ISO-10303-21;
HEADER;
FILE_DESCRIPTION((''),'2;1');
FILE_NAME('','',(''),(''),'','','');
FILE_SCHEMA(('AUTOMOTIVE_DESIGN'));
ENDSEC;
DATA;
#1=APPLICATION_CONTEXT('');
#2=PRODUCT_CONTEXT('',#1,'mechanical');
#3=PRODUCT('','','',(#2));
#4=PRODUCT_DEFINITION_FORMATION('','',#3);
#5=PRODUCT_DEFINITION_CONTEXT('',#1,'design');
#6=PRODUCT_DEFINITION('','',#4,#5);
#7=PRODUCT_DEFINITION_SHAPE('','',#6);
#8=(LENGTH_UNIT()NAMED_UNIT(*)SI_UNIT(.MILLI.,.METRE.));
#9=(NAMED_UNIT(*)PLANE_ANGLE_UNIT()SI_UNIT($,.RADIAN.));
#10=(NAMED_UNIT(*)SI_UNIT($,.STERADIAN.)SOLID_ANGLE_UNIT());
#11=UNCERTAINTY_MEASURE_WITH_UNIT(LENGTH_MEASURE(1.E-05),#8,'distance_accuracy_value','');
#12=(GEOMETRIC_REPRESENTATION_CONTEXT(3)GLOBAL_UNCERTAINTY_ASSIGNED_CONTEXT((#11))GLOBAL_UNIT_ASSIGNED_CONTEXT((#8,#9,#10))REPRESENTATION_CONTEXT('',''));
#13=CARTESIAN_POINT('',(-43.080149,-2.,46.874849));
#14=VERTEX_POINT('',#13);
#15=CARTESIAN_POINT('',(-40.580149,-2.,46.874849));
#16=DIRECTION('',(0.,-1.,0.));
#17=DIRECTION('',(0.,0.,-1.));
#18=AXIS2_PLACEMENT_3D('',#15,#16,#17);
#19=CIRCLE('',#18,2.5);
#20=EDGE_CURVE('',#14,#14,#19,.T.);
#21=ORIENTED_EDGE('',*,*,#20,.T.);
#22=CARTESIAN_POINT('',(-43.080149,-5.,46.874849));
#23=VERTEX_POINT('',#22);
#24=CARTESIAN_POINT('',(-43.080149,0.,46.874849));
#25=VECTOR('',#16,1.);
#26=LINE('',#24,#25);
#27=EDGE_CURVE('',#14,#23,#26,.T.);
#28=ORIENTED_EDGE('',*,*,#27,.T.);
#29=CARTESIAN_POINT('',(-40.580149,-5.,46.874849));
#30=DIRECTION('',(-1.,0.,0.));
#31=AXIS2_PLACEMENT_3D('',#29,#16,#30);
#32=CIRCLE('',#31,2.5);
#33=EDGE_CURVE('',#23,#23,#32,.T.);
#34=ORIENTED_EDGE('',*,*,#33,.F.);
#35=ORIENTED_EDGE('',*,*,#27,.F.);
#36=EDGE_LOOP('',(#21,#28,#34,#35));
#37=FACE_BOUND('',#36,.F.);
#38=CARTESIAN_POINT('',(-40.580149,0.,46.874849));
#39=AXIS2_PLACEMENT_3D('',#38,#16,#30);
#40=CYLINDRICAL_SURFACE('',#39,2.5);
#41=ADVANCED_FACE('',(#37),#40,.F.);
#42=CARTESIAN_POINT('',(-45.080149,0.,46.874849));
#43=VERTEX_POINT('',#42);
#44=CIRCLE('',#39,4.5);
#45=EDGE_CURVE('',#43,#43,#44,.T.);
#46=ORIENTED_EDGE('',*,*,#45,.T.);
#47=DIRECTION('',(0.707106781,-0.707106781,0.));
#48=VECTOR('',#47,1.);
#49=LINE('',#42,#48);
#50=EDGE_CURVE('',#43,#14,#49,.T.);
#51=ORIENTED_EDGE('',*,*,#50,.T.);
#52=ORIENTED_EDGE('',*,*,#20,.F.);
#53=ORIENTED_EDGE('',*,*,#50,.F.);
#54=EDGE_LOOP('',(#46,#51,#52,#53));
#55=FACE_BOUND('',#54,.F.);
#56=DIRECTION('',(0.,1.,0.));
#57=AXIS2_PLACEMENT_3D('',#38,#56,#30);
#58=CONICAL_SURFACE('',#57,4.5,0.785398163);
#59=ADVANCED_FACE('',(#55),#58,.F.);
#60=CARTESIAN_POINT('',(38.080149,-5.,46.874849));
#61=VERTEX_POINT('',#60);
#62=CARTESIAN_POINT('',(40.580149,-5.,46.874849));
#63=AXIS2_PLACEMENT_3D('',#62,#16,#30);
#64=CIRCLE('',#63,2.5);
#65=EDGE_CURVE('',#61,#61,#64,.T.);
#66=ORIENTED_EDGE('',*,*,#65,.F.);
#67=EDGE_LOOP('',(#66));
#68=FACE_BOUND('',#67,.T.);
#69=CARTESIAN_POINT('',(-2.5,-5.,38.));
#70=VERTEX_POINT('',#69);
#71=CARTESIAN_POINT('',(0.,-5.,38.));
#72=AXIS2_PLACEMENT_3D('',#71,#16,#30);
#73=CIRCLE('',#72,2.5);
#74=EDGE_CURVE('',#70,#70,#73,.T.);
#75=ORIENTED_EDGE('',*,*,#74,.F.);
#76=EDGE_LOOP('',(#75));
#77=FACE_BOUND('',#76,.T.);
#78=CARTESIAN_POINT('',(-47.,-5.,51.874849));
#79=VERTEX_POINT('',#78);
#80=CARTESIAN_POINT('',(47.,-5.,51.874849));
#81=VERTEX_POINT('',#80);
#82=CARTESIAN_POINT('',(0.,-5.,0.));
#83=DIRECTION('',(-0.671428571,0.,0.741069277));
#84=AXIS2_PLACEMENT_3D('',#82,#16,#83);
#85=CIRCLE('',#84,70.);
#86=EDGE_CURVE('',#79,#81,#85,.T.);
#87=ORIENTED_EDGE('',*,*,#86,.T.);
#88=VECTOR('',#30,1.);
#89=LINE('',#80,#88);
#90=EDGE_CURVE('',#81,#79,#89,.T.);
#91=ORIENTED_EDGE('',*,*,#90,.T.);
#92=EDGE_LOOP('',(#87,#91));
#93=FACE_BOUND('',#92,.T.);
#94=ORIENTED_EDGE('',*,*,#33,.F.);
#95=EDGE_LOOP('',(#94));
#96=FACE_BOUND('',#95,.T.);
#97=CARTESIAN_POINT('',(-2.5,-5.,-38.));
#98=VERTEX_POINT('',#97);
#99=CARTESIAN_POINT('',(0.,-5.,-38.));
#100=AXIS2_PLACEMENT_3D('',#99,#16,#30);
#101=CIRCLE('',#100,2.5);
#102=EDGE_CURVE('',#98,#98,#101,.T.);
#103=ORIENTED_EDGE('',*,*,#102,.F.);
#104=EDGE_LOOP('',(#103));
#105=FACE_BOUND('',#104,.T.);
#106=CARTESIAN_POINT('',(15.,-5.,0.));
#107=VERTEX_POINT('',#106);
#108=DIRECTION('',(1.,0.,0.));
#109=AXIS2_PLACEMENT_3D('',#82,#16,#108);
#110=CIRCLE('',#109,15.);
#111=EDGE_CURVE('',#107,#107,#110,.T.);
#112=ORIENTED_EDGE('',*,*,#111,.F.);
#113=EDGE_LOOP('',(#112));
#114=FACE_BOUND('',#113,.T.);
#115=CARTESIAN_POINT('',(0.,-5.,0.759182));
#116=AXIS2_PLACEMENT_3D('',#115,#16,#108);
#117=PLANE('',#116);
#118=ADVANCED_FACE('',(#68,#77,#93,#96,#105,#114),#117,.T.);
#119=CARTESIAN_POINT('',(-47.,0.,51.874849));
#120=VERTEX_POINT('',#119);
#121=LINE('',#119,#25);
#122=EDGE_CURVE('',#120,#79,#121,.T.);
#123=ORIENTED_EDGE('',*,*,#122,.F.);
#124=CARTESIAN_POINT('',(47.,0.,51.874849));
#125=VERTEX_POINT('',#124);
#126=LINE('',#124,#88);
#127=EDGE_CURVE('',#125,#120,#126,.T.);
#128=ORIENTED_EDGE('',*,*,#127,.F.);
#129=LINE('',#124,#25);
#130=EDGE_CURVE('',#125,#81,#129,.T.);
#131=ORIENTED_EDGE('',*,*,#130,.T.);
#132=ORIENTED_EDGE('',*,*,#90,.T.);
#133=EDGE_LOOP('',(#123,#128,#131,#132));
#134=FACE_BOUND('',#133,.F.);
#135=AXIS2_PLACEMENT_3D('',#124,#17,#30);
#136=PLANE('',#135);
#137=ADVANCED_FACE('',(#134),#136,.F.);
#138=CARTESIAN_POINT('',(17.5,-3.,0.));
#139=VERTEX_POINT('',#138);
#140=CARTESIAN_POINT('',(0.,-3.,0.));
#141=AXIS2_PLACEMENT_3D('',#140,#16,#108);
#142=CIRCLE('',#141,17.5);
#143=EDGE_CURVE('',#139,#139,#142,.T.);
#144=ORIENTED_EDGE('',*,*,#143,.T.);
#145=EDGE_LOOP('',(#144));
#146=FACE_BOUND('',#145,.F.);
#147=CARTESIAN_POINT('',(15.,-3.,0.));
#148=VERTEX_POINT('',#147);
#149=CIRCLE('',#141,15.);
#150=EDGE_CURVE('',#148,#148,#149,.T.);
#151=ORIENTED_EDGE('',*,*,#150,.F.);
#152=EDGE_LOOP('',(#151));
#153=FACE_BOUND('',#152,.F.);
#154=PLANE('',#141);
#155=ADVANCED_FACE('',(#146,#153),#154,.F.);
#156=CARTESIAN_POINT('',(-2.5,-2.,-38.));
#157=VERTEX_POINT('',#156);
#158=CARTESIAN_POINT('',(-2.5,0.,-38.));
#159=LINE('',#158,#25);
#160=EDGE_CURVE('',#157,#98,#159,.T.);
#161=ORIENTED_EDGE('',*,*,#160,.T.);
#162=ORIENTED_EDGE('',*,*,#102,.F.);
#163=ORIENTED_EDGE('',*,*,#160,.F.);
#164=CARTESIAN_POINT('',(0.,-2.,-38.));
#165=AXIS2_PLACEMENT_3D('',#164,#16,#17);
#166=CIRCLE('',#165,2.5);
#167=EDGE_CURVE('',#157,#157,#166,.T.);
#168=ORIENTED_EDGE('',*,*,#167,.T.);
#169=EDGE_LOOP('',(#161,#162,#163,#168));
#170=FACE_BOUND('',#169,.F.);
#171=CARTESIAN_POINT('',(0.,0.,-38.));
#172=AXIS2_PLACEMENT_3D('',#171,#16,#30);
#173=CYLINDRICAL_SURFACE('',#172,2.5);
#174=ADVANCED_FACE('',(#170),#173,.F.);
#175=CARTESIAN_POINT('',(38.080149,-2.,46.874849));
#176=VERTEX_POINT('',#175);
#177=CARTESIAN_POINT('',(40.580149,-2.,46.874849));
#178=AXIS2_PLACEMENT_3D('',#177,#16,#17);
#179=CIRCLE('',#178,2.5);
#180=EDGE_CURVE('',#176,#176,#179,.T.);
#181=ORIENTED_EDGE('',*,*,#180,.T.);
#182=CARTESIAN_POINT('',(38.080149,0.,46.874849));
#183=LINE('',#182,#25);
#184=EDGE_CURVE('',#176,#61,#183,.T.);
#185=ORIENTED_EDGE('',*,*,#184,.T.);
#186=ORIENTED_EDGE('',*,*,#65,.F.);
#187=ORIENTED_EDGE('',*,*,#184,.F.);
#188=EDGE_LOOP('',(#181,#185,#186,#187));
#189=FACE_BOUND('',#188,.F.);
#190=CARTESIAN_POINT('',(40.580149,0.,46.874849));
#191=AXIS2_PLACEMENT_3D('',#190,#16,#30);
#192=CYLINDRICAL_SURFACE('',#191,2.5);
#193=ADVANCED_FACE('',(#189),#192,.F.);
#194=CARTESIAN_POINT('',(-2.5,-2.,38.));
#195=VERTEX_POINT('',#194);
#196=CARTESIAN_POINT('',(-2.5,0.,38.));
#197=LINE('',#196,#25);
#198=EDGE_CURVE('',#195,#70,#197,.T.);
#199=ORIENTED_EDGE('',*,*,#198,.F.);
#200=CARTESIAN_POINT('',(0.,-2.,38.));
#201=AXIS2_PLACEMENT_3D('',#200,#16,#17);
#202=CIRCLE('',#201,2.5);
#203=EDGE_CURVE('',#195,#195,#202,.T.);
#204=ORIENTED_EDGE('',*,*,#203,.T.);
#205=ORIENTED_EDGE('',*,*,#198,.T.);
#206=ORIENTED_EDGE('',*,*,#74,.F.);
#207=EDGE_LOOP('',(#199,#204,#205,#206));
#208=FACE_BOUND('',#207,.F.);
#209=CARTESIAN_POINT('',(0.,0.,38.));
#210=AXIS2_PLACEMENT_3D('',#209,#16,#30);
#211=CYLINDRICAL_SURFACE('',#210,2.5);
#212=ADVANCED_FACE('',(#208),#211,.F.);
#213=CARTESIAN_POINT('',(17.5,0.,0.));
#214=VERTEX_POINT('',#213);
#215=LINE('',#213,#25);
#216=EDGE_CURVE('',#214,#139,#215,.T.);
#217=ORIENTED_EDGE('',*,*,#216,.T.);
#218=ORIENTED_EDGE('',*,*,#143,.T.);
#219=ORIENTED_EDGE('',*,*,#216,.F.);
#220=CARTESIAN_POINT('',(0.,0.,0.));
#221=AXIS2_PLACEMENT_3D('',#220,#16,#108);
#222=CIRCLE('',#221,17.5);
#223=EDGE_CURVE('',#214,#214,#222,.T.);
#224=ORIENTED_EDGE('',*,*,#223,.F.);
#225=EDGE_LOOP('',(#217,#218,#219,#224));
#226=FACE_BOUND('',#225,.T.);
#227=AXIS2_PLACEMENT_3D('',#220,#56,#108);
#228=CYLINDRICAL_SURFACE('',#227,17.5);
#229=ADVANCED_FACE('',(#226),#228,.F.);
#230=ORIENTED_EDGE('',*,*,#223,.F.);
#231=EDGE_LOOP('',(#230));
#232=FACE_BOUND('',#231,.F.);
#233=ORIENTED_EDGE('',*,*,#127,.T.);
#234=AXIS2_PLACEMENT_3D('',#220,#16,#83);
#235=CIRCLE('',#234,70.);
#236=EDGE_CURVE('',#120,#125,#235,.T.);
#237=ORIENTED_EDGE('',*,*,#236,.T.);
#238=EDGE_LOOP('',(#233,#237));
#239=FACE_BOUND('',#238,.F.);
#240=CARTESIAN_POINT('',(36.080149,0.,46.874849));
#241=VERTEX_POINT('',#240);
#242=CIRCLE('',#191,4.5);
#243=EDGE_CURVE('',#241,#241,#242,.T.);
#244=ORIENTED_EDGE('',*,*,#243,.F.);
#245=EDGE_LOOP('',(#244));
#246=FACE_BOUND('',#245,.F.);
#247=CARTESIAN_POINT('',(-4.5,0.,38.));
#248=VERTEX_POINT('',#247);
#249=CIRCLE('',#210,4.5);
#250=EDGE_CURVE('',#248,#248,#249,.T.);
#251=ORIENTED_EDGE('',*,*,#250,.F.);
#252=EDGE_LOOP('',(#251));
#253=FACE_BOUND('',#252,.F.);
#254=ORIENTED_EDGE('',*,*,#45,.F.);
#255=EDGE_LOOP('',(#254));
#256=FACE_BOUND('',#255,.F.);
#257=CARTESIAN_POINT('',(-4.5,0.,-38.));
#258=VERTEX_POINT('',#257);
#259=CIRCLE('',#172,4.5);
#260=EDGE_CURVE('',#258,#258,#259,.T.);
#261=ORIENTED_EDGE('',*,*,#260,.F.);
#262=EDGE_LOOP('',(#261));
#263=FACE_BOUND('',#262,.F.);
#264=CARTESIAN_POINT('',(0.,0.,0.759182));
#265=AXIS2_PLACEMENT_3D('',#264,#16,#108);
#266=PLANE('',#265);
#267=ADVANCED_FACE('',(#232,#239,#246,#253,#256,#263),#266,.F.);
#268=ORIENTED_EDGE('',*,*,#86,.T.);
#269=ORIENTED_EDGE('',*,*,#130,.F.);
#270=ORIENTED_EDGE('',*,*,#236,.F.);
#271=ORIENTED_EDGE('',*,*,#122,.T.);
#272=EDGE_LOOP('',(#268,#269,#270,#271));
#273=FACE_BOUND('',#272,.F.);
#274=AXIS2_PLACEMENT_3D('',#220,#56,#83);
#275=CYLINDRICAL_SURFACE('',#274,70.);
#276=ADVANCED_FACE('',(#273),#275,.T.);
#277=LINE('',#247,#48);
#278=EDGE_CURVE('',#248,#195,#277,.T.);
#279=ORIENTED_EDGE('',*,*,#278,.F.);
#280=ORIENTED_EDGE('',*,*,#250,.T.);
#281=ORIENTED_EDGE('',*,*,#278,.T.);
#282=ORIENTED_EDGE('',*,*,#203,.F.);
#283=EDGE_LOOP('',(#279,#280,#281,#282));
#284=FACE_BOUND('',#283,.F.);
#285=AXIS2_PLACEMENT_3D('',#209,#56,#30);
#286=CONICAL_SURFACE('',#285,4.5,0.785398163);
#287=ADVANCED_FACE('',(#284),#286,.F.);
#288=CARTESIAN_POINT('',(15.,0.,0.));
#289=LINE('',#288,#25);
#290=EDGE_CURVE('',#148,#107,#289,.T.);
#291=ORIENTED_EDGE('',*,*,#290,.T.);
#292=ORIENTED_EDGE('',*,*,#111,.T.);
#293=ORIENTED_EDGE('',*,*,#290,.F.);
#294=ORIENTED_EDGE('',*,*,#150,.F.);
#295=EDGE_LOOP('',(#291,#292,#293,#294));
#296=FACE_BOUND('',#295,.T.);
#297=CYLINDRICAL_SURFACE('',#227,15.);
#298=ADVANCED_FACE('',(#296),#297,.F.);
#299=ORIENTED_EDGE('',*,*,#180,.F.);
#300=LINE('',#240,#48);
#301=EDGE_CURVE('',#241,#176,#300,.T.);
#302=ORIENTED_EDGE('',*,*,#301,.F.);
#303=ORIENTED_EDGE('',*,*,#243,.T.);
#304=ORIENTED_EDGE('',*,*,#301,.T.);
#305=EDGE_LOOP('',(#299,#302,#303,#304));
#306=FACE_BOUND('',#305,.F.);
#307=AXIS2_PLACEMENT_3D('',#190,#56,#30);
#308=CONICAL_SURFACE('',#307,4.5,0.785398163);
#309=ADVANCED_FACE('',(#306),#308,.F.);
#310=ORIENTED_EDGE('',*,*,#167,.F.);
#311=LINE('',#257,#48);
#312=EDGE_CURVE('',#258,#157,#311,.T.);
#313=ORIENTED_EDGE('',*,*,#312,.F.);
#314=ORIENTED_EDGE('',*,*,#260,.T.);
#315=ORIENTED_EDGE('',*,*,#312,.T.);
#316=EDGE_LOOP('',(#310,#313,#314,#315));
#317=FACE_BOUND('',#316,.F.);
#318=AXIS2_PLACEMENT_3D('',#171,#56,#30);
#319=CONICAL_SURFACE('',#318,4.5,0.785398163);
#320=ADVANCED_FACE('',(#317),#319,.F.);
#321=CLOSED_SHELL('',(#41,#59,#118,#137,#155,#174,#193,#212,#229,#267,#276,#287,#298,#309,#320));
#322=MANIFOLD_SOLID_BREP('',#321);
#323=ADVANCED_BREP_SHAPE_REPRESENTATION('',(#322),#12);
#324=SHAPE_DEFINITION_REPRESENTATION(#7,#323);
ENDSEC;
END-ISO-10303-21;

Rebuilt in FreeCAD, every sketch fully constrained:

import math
import FreeCAD as App
import Part
import Sketcher

V = App.Vector
Q = App.Units.Quantity

doc = App.newDocument("Part")
body = doc.addObject("PartDesign::Body", "Body")

sketch1 = body.newObject("Sketcher::SketchObject", "Sketch")
sketch1.AttachmentSupport = (doc.getObject("XZ_Plane"), [""])
sketch1.MapMode = "FlatFace"
sketch1.addGeometry(Part.LineSegment(V(47, 52, 0), V(-47, 52, 0)), False)
sketch1.addGeometry(Part.ArcOfCircle(Part.Circle(V(0, 0, 0), V(0, 0, 1), 70), math.radians(132), math.radians(408)), False)
sketch1.addGeometry(Part.Circle(V(0, 0, 0), V(0, 0, 1), 15), False)
sketch1.addConstraint(Sketcher.Constraint("Coincident", 0, 1, 1, 2))
sketch1.addConstraint(Sketcher.Constraint("Coincident", 1, 1, 0, 2))
sketch1.addConstraint(Sketcher.Constraint("Horizontal", 0))
sketch1.addConstraint(Sketcher.Constraint("Coincident", 1, 3, -1, 1))
sketch1.addConstraint(Sketcher.Constraint("Coincident", 2, 3, -1, 1))
sketch1.addConstraint(Sketcher.Constraint("Diameter", 2, Q("30 mm")))
sketch1.addConstraint(Sketcher.Constraint("Radius", 1, Q("70 mm")))
sketch1.addConstraint(Sketcher.Constraint("DistanceX", 0, 2, 0, 1, Q("94 mm")))
pad1 = body.newObject("PartDesign::Pad", "Pad")
pad1.Profile = sketch1
pad1.Length = 5

sketch2 = body.newObject("Sketcher::SketchObject", "Sketch001")
sketch2.AttachmentSupport = (doc.getObject("XZ_Plane"), [""])
sketch2.MapMode = "FlatFace"
sketch2.addGeometry(Part.Circle(V(0, 0, 0), V(0, 0, 1), 18), False)
sketch2.addGeometry(Part.Circle(V(0, 0, 0), V(0, 0, 1), 15), False)
sketch2.addConstraint(Sketcher.Constraint("Coincident", 0, 3, -1, 1))
sketch2.addConstraint(Sketcher.Constraint("Coincident", 1, 3, -1, 1))
sketch2.addConstraint(Sketcher.Constraint("Diameter", 0, Q("35 mm")))
sketch2.addConstraint(Sketcher.Constraint("Diameter", 1, Q("30 mm")))
pocket1 = body.newObject("PartDesign::Pocket", "Pocket")
pocket1.Profile = sketch2
pocket1.Length = 3
pocket1.Reversed = True

sketch3 = body.newObject("Sketcher::SketchObject", "Sketch002")
sketch3.AttachmentSupport = (doc.getObject("XZ_Plane"), [""])
sketch3.MapMode = "FlatFace"
sketch3.addGeometry(Part.Circle(V(-40.6, 46.9, 0), V(0, 0, 1), 2.5), False)
sketch3.addGeometry(Part.Circle(V(0, 38, 0), V(0, 0, 1), 2.5), False)
sketch3.addGeometry(Part.Circle(V(40.6, 46.9, 0), V(0, 0, 1), 2.5), False)
sketch3.addGeometry(Part.Circle(V(0, -38, 0), V(0, 0, 1), 2.5), False)
sketch3.addConstraint(Sketcher.Constraint("Equal", 0, 1))
sketch3.addConstraint(Sketcher.Constraint("Equal", 1, 2))
sketch3.addConstraint(Sketcher.Constraint("Equal", 2, 3))
sketch3.addConstraint(Sketcher.Constraint("Symmetric", 1, 3, 3, 3, -1, 1))
sketch3.addConstraint(Sketcher.Constraint("Symmetric", 0, 3, 2, 3, -2))
sketch3.addConstraint(Sketcher.Constraint("PointOnObject", 1, 3, -2))
sketch3.addConstraint(Sketcher.Constraint("Diameter", 0, Q("5 mm")))
sketch3.addConstraint(Sketcher.Constraint("DistanceY", -1, 1, 1, 3, Q("38 mm")))
sketch3.addConstraint(Sketcher.Constraint("DistanceX", 0, 3, 2, 3, Q("81.160298 mm")))
sketch3.addConstraint(Sketcher.Constraint("DistanceY", -1, 1, 0, 3, Q("46.874849 mm")))
doc.recompute()
hole = body.newObject("PartDesign::Hole", "Hole")
hole.Profile = sketch3
hole.ThreadType = "None"
hole.Diameter = 5
hole.DepthType = "ThroughAll"
hole.HoleCutType = "Countersink"
hole.HoleCutDiameter = 9
hole.HoleCutCountersinkAngle = 90
hole.Reversed = True

doc.recompute()
